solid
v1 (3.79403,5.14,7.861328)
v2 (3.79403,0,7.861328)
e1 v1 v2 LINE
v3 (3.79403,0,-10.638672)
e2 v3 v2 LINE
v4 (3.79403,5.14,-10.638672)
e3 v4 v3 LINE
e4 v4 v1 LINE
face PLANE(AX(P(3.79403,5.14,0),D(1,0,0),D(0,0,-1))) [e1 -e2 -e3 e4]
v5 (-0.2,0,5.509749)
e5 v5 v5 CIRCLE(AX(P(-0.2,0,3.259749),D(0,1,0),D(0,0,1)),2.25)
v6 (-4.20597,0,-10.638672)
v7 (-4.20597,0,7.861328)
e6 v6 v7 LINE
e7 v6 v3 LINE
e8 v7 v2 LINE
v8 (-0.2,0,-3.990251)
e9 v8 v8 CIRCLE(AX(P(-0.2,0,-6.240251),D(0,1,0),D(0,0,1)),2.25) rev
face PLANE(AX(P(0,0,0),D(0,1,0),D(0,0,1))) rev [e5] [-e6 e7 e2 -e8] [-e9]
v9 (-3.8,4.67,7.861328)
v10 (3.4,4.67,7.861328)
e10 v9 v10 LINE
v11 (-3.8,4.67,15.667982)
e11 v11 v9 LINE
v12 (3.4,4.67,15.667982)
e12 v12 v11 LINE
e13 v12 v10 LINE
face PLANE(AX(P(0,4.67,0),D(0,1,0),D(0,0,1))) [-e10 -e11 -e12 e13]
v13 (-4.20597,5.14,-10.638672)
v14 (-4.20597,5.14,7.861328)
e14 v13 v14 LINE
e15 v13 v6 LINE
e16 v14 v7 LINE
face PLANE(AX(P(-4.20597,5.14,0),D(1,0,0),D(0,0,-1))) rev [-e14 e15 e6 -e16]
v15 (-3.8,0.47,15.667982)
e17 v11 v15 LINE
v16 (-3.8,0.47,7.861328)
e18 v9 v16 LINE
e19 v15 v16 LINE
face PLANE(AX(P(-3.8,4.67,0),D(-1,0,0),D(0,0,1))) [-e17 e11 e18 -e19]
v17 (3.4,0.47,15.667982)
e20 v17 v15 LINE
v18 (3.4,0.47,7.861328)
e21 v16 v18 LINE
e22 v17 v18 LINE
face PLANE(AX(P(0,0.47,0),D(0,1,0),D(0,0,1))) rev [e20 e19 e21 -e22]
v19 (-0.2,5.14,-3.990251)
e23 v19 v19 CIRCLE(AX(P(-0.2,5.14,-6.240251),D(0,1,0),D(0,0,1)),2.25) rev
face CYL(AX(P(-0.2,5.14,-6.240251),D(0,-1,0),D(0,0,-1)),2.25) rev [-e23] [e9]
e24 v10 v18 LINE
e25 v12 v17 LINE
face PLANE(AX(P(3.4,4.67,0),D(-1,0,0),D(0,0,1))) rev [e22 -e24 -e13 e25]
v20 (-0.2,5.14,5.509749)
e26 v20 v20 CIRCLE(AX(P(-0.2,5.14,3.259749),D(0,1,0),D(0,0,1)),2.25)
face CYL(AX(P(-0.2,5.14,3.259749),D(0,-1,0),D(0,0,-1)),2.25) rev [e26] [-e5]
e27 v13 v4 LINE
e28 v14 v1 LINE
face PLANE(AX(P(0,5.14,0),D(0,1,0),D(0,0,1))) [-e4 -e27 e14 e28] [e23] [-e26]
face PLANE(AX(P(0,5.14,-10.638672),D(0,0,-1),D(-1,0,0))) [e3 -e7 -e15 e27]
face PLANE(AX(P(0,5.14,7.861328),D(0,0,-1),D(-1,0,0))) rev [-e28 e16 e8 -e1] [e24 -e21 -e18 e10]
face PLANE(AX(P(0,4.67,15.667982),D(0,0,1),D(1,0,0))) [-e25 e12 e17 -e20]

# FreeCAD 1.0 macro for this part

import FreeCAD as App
import Part
import Sketcher
from FreeCAD import Vector
Q = App.Units.Quantity


def add_polygon(sketch, points):
    """Adds a closed chain of lines whose ends are joined by coincident constraints."""
    first, n = sketch.GeometryCount, len(points)
    for a, b in zip(points, points[1:] + points[:1]):
        sketch.addGeometry(Part.LineSegment(App.Vector(*a, 0), App.Vector(*b, 0)), False)
    for i in range(n):
        sketch.addConstraint(Sketcher.Constraint("Coincident", first + i, 2, first + (i + 1) % n, 1))

doc = App.newDocument("Part")
body = doc.addObject("PartDesign::Body", "Body")

# Sketch on XZ plane
sketch1 = doc.addObject("Sketcher::SketchObject", "Sketch")
body.addObject(sketch1)
sketch1.AttachmentSupport = (doc.XZ_Plane, [""])
sketch1.MapMode = "FlatFace"
add_polygon(sketch1, [(-4.2, -10.6), (-4.2, 7.9), (3.8, 7.9), (3.8, -10.6)])  # lines 0-3
sketch1.addGeometry(Part.Circle(Vector(-0.2, 3.3, 0), Vector(0, 0, 1), 2.2), False)  # 4
sketch1.addGeometry(Part.Circle(Vector(-0.2, -6.2, 0), Vector(0, 0, 1), 2.2), False)  # 5
sketch1.addConstraint([
    Sketcher.Constraint("Vertical", 0),
    Sketcher.Constraint("Horizontal", 1),
    Sketcher.Constraint("Vertical", 2),
    Sketcher.Constraint("Horizontal", 3),
    Sketcher.Constraint("Equal", 4, 5),
    Sketcher.Constraint("Vertical", 4, 3, 5, 3),
    Sketcher.Constraint("Diameter", 4, Q("4.5 mm")),
    Sketcher.Constraint("DistanceX", 1, 1, 1, 2, Q("8 mm")),
    Sketcher.Constraint("DistanceY", 0, 1, 0, 2, Q("18.5 mm")),
    Sketcher.Constraint("DistanceX", 4, 3, -1, 1, Q("0.2 mm")),
    Sketcher.Constraint("DistanceY", 5, 3, 4, 3, Q("9.5 mm")),
    Sketcher.Constraint("DistanceY", -1, 1, 4, 3, Q("3.259749 mm")),
    Sketcher.Constraint("DistanceX", 0, 2, -1, 1, Q("4.20597 mm")),
    Sketcher.Constraint("DistanceY", 4, 3, 0, 2, Q("4.601579 mm")),
])
pad1 = doc.addObject("PartDesign::Pad", "Pad")
body.addObject(pad1)
pad1.Profile = sketch1
pad1.Length = 5.14
pad1.Reversed = True

# Sketch on XZ plane
sketch2 = doc.addObject("Sketcher::SketchObject", "Sketch001")
body.addObject(sketch2)
sketch2.AttachmentSupport = (doc.XZ_Plane, [""])
sketch2.MapMode = "FlatFace"
sketch2.AttachmentOffset = App.Placement(Vector(0, 0, -0.47), App.Rotation())
add_polygon(sketch2, [(-4, 8), (-4, 16), (3, 16), (3, 8)])  # lines 0-3
sketch2.addConstraint([
    Sketcher.Constraint("Vertical", 0),
    Sketcher.Constraint("Horizontal", 1),
    Sketcher.Constraint("Vertical", 2),
    Sketcher.Constraint("Horizontal", 3),
    Sketcher.Constraint("DistanceX", 1, 1, 1, 2, Q("7.2 mm")),
    Sketcher.Constraint("DistanceX", 0, 2, -1, 1, Q("3.8 mm")),
    Sketcher.Constraint("DistanceY", 0, 1, 0, 2, Q("7.806654 mm")),
    Sketcher.Constraint("DistanceY", -1, 1, 0, 2, Q("15.667982 mm")),
])
pad2 = doc.addObject("PartDesign::Pad", "Pad001")
body.addObject(pad2)
pad2.Profile = sketch2
pad2.Length = 4.2
pad2.Reversed = True

doc.recompute()
